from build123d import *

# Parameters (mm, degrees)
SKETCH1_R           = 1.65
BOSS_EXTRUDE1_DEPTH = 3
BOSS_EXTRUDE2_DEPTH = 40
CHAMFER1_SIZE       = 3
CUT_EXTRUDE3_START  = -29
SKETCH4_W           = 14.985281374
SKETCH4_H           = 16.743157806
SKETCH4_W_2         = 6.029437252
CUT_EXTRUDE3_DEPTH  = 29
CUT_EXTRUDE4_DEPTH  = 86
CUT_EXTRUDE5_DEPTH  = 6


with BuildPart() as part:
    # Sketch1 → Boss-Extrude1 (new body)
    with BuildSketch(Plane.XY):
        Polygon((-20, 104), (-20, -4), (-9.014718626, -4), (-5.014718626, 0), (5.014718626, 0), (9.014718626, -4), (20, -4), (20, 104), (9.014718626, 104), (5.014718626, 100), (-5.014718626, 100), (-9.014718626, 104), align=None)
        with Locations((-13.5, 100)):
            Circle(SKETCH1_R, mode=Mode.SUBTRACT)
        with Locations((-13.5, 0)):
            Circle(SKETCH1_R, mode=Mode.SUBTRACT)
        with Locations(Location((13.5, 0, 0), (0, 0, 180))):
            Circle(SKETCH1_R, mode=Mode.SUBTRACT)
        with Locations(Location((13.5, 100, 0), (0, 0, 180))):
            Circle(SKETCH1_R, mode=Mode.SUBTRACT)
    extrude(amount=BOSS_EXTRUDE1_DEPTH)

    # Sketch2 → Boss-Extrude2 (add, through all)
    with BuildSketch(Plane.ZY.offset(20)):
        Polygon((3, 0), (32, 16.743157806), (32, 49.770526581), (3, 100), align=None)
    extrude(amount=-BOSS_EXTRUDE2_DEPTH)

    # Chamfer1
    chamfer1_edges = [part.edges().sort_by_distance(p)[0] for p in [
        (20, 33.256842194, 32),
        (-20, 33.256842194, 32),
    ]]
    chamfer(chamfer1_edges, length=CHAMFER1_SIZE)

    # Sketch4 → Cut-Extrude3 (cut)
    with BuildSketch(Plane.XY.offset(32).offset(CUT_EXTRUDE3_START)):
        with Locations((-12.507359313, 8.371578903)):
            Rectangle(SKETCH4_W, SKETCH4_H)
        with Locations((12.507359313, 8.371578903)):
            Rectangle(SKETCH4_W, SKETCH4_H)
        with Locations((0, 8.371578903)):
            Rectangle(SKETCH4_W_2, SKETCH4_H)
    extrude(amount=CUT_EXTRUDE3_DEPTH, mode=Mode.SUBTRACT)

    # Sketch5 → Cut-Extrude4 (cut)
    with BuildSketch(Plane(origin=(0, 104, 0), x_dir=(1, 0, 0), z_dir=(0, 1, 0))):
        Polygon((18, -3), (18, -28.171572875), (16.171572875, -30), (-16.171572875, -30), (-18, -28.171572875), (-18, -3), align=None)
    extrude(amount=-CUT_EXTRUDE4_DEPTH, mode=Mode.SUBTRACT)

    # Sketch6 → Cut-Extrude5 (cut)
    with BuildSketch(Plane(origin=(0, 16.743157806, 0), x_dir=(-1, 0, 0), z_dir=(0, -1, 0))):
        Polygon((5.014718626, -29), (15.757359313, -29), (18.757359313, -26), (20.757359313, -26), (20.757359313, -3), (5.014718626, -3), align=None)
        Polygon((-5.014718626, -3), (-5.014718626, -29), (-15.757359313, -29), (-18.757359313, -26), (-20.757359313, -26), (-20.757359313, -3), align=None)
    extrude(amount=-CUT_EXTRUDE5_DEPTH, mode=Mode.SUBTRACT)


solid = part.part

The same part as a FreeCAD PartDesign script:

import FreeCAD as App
import Part
import Sketcher
from FreeCAD import Vector
Q = App.Units.Quantity


def edges_at(feature, points):
    """Names of the edges that pass closest to the given points."""
    edges = feature.Shape.Edges
    near = lambda p: min(range(len(edges)), key=lambda i: edges[i].distToShape(Part.Vertex(*p))[0])
    return sorted({f"Edge{near(p) + 1}" for p in points})

doc = App.newDocument("Part")
body = doc.addObject("PartDesign::Body", "Body")

sketch1 = body.newObject("Sketcher::SketchObject", "Sketch")
sketch1.AttachmentSupport = (doc.getObject("XY_Plane"), [""])
sketch1.MapMode = "FlatFace"
sketch1.addGeometry([
    Part.LineSegment(Vector(-20, 104, 0), Vector(-20, -4, 0)),
    Part.LineSegment(Vector(-20, -4, 0), Vector(-9.014719, -4, 0)),
    Part.LineSegment(Vector(-9.014719, -4, 0), Vector(-5.014719, 0, 0)),
    Part.LineSegment(Vector(-5.014719, 0, 0), Vector(5.014719, 0, 0)),
    Part.LineSegment(Vector(5.014719, 0, 0), Vector(9.014719, -4, 0)),
    Part.LineSegment(Vector(9.014719, -4, 0), Vector(20, -4, 0)),
    Part.LineSegment(Vector(20, -4, 0), Vector(20, 104, 0)),
    Part.LineSegment(Vector(20, 104, 0), Vector(9.014719, 104, 0)),
    Part.LineSegment(Vector(9.014719, 104, 0), Vector(5.014719, 100, 0)),
    Part.LineSegment(Vector(5.014719, 100, 0), Vector(-5.014719, 100, 0)),
    Part.LineSegment(Vector(-5.014719, 100, 0), Vector(-9.014719, 104, 0)),
    Part.LineSegment(Vector(-9.014719, 104, 0), Vector(-20, 104, 0)),
    Part.Circle(Vector(-13.5, 0, 0), Vector(0, 0, 1), 1.65),
    Part.Circle(Vector(13.5, 0, 0), Vector(0, 0, 1), 1.65),
    Part.Circle(Vector(-13.5, 100, 0), Vector(0, 0, 1), 1.65),
    Part.Circle(Vector(13.5, 100, 0), Vector(0, 0, 1), 1.65),
], False)
sketch1.addConstraint([
    Sketcher.Constraint("Coincident", 0, 2, 1, 1),
    Sketcher.Constraint("Coincident", 1, 2, 2, 1),
    Sketcher.Constraint("Coincident", 2, 2, 3, 1),
    Sketcher.Constraint("Coincident", 3, 2, 4, 1),
    Sketcher.Constraint("Coincident", 4, 2, 5, 1),
    Sketcher.Constraint("Coincident", 5, 2, 6, 1),
    Sketcher.Constraint("Coincident", 6, 2, 7, 1),
    Sketcher.Constraint("Coincident", 7, 2, 8, 1),
    Sketcher.Constraint("Coincident", 8, 2, 9, 1),
    Sketcher.Constraint("Coincident", 9, 2, 10, 1),
    Sketcher.Constraint("Coincident", 10, 2, 11, 1),
    Sketcher.Constraint("Coincident", 11, 2, 0, 1),
    Sketcher.Constraint("Vertical", 0),
    Sketcher.Constraint("Horizontal", 1),
    Sketcher.Constraint("Horizontal", 3),
    Sketcher.Constraint("Horizontal", 5),
    Sketcher.Constraint("Vertical", 6),
    Sketcher.Constraint("Horizontal", 7),
    Sketcher.Constraint("Horizontal", 9),
    Sketcher.Constraint("Horizontal", 11),
    Sketcher.Constraint("Equal", 12, 13),
    Sketcher.Constraint("Equal", 13, 14),
    Sketcher.Constraint("Equal", 14, 15),
    Sketcher.Constraint("Symmetric", 12, 3, 13, 3, -1, 1),
    Sketcher.Constraint("Symmetric", 2, 2, 3, 2, -1, 1),
    Sketcher.Constraint("Symmetric", 14, 3, 15, 3, -2),
    Sketcher.Constraint("Symmetric", 1, 2, 4, 2, -2),
    Sketcher.Constraint("Symmetric", 7, 2, 10, 2, -2),
    Sketcher.Constraint("PointOnObject", 12, 3, -1),
    Sketcher.Constraint("Perpendicular", 2, 4),
    Sketcher.Constraint("Perpendicular", 4, 8),
    Sketcher.Constraint("Perpendicular", 8, 10),
    Sketcher.Constraint("Horizontal", 15, 3, 8, 2),
    Sketcher.Constraint("Vertical", 12, 3, 14, 3),
    Sketcher.Constraint("Vertical", 4, 2, 7, 2),
    Sketcher.Constraint("Vertical", 3, 2, 8, 2),
    Sketcher.Constraint("Equal", 1, 5),
    Sketcher.Constraint("Diameter", 12, Q("3.3 mm")),
    Sketcher.Constraint("DistanceY", 0, 2, 0, 1, Q("108 mm")),
    Sketcher.Constraint("DistanceY", -1, 1, 14, 3, Q("100 mm")),
    Sketcher.Constraint("DistanceX", 0, 2, -1, 1, Q("20 mm")),
    Sketcher.Constraint("DistanceX", 12, 3, 13, 3, Q("27 mm")),
    Sketcher.Constraint("DistanceX", 1, 1, 1, 2, Q("10.985281 mm")),
])
pad1 = body.newObject("PartDesign::Pad", "Pad")
pad1.Profile = sketch1
pad1.Length = 3

sketch2 = body.newObject("Sketcher::SketchObject", "Sketch001")
sketch2.AttachmentSupport = (doc.getObject("YZ_Plane"), [""])
sketch2.MapMode = "FlatFace"
sketch2.AttachmentOffset = App.Placement(Vector(0, 0, -20), App.Rotation())
sketch2.addGeometry([
    Part.LineSegment(Vector(0, 3, 0), Vector(16.743158, 32, 0)),
    Part.LineSegment(Vector(16.743158, 32, 0), Vector(49.770527, 32, 0)),
    Part.LineSegment(Vector(49.770527, 32, 0), Vector(100, 3, 0)),
    Part.LineSegment(Vector(100, 3, 0), Vector(0, 3, 0)),
], False)
sketch2.addConstraint([
    Sketcher.Constraint("Coincident", 0, 2, 1, 1),
    Sketcher.Constraint("Coincident", 1, 2, 2, 1),
    Sketcher.Constraint("Coincident", 2, 2, 3, 1),
    Sketcher.Constraint("Coincident", 3, 2, 0, 1),
    Sketcher.Constraint("Horizontal", 1),
    Sketcher.Constraint("Horizontal", 3),
    Sketcher.Constraint("PointOnObject", 3, 2, -2),
    Sketcher.Constraint("Perpendicular", 0, 2),
    Sketcher.Constraint("DistanceX", 3, 2, 3, 1, Q("100 mm")),
    Sketcher.Constraint("Angle", 0, Q("60 deg")),
    Sketcher.Constraint("Distance", 2, Q("58 mm")),
    Sketcher.Constraint("DistanceY", -1, 1, 0, 2, Q("32 mm")),
])
pad2 = body.newObject("PartDesign::Pad", "Pad001")
pad2.Profile = sketch2
pad2.Length = 40
doc.recompute()

chamfer = body.newObject("PartDesign::Chamfer", "Chamfer")
chamfer.Base = (pad2, edges_at(pad2, [(20, 33.257, 32), (-20, 33.257, 32)]))
chamfer.Size = 3

sketch3 = body.newObject("Sketcher::SketchObject", "Sketch002")
sketch3.AttachmentSupport = (doc.getObject("XY_Plane"), [""])
sketch3.MapMode = "FlatFace"
sketch3.AttachmentOffset = App.Placement(Vector(0, 0, 3), App.Rotation())
sketch3.addGeometry([
    Part.LineSegment(Vector(-20, 16.743158, 0), Vector(-20, 0, 0)),
    Part.LineSegment(Vector(-20, 0, 0), Vector(-5.014719, 0, 0)),
    Part.LineSegment(Vector(-5.014719, 0, 0), Vector(-5.014719, 16.743158, 0)),
    Part.LineSegment(Vector(-5.014719, 16.743158, 0), Vector(-20, 16.743158, 0)),
    Part.LineSegment(Vector(5.014719, 16.743158, 0), Vector(5.014719, 0, 0)),
    Part.LineSegment(Vector(5.014719, 0, 0), Vector(20, 0, 0)),
    Part.LineSegment(Vector(20, 0, 0), Vector(20, 16.743158, 0)),
    Part.LineSegment(Vector(20, 16.743158, 0), Vector(5.014719, 16.743158, 0)),
    Part.LineSegment(Vector(-3.014719, 16.743158, 0), Vector(-3.014719, 0, 0)),
    Part.LineSegment(Vector(-3.014719, 0, 0), Vector(3.014719, 0, 0)),
    Part.LineSegment(Vector(3.014719, 0, 0), Vector(3.014719, 16.743158, 0)),
    Part.LineSegment(Vector(3.014719, 16.743158, 0), Vector(-3.014719, 16.743158, 0)),
], False)
sketch3.addConstraint([
    Sketcher.Constraint("Coincident", 0, 2, 1, 1),
    Sketcher.Constraint("Coincident", 1, 2, 2, 1),
    Sketcher.Constraint("Coincident", 2, 2, 3, 1),
    Sketcher.Constraint("Coincident", 3, 2, 0, 1),
    Sketcher.Constraint("Coincident", 4, 2, 5, 1),
    Sketcher.Constraint("Coincident", 5, 2, 6, 1),
    Sketcher.Constraint("Coincident", 6, 2, 7, 1),
    Sketcher.Constraint("Coincident", 7, 2, 4, 1),
    Sketcher.Constraint("Coincident", 8, 2, 9, 1),
    Sketcher.Constraint("Coincident", 9, 2, 10, 1),
    Sketcher.Constraint("Coincident", 10, 2, 11, 1),
    Sketcher.Constraint("Coincident", 11, 2, 8, 1),
    Sketcher.Constraint("Vertical", 0),
    Sketcher.Constraint("Horizontal", 1),
    Sketcher.Constraint("Vertical", 2),
    Sketcher.Constraint("Horizontal", 3),
    Sketcher.Constraint("Vertical", 4),
    Sketcher.Constraint("Horizontal", 5),
    Sketcher.Constraint("Vertical", 6),
    Sketcher.Constraint("Horizontal", 7),
    Sketcher.Constraint("Vertical", 8),
    Sketcher.Constraint("Horizontal", 9),
    Sketcher.Constraint("Vertical", 10),
    Sketcher.Constraint("Horizontal", 11),
    Sketcher.Constraint("Symmetric", 1, 2, 4, 2, -1, 1),
    Sketcher.Constraint("Symmetric", 8, 2, 9, 2, -1, 1),
    Sketcher.Constraint("Symmetric", 0, 2, 5, 2, -2),
    Sketcher.Constraint("Horizontal", 3, 2, 6, 2),
    Sketcher.Constraint("Horizontal", 7, 2, 10, 2),
    Sketcher.Constraint("DistanceX", 0, 2, -1, 1, Q("20 mm")),
    Sketcher.Constraint("DistanceX", 1, 2, 8, 2, Q("2 mm")),
    Sketcher.Constraint("DistanceX", 1, 1, 1, 2, Q("14.985281 mm")),
    Sketcher.Constraint("DistanceY", 0, 2, 0, 1, Q("16.743158 mm")),
])
pocket1 = body.newObject("PartDesign::Pocket", "Pocket")
pocket1.Profile = sketch3
pocket1.Length = 29
pocket1.Reversed = True

sketch4 = body.newObject("Sketcher::SketchObject", "Sketch003")
sketch4.AttachmentSupport = (doc.getObject("XZ_Plane"), [""])
sketch4.MapMode = "FlatFace"
sketch4.AttachmentOffset = App.Placement(Vector(0, 0, -104), App.Rotation())
sketch4.addGeometry([
    Part.LineSegment(Vector(18, 28.171573, 0), Vector(18, 3, 0)),
    Part.LineSegment(Vector(18, 3, 0), Vector(-18, 3, 0)),
    Part.LineSegment(Vector(-18, 3, 0), Vector(-18, 28.171573, 0)),
    Part.LineSegment(Vector(-18, 28.171573, 0), Vector(-16.171573, 30, 0)),
    Part.LineSegment(Vector(-16.171573, 30, 0), Vector(16.171573, 30, 0)),
    Part.LineSegment(Vector(16.171573, 30, 0), Vector(18, 28.171573, 0)),
], False)
sketch4.addConstraint([
    Sketcher.Constraint("Coincident", 0, 2, 1, 1),
    Sketcher.Constraint("Coincident", 1, 2, 2, 1),
    Sketcher.Constraint("Coincident", 2, 2, 3, 1),
    Sketcher.Constraint("Coincident", 3, 2, 4, 1),
    Sketcher.Constraint("Coincident", 4, 2, 5, 1),
    Sketcher.Constraint("Coincident", 5, 2, 0, 1),
    Sketcher.Constraint("Vertical", 0),
    Sketcher.Constraint("Horizontal", 1),
    Sketcher.Constraint("Vertical", 2),
    Sketcher.Constraint("Horizontal", 4),
    Sketcher.Constraint("Symmetric", 2, 2, 5, 2, -2),
    Sketcher.Constraint("Perpendicular", 3, 5),
    Sketcher.Constraint("Equal", 3, 5),
    Sketcher.Constraint("DistanceX", 1, 2, 1, 1, Q("36 mm")),
    Sketcher.Constraint("DistanceY", -1, 1, 0, 2, Q("3 mm")),
    Sketcher.Constraint("DistanceY", -1, 1, 3, 2, Q("30 mm")),
    Sketcher.Constraint("DistanceX", 4, 1, 4, 2, Q("32.343146 mm")),
])
pocket2 = body.newObject("PartDesign::Pocket", "Pocket001")
pocket2.Profile = sketch4
pocket2.Length = 86
pocket2.Reversed = True

sketch5 = body.newObject("Sketcher::SketchObject", "Sketch004")
sketch5.AttachmentSupport = (doc.getObject("XZ_Plane"), [""])
sketch5.MapMode = "FlatFace"
sketch5.AttachmentOffset = App.Placement(Vector(0, 0, -16.743158), App.Rotation())
sketch5.addGeometry([
    Part.LineSegment(Vector(-5.014719, 29, 0), Vector(-15.757359, 29, 0)),
    Part.LineSegment(Vector(-15.757359, 29, 0), Vector(-18.757359, 26, 0)),
    Part.LineSegment(Vector(-18.757359, 26, 0), Vector(-20.757359, 26, 0)),
    Part.LineSegment(Vector(-20.757359, 26, 0), Vector(-20.757359, 3, 0)),
    Part.LineSegment(Vector(-20.757359, 3, 0), Vector(-5.014719, 3, 0)),
    Part.LineSegment(Vector(-5.014719, 3, 0), Vector(-5.014719, 29, 0)),
    Part.LineSegment(Vector(5.014719, 29, 0), Vector(5.014719, 3, 0)),
    Part.LineSegment(Vector(5.014719, 3, 0), Vector(20.757359, 3, 0)),
    Part.LineSegment(Vector(20.757359, 3, 0), Vector(20.757359, 26, 0)),
    Part.LineSegment(Vector(20.757359, 26, 0), Vector(18.757359, 26, 0)),
    Part.LineSegment(Vector(18.757359, 26, 0), Vector(15.757359, 29, 0)),
    Part.LineSegment(Vector(15.757359, 29, 0), Vector(5.014719, 29, 0)),
], False)
sketch5.addConstraint([
    Sketcher.Constraint("Coincident", 0, 2, 1, 1),
    Sketcher.Constraint("Coincident", 1, 2, 2, 1),
    Sketcher.Constraint("Coincident", 2, 2, 3, 1),
    Sketcher.Constraint("Coincident", 3, 2, 4, 1),
    Sketcher.Constraint("Coincident", 4, 2, 5, 1),
    Sketcher.Constraint("Coincident", 5, 2, 0, 1),
    Sketcher.Constraint("Coincident", 6, 2, 7, 1),
    Sketcher.Constraint("Coincident", 7, 2, 8, 1),
    Sketcher.Constraint("Coincident", 8, 2, 9, 1),
    Sketcher.Constraint("Coincident", 9, 2, 10, 1),
    Sketcher.Constraint("Coincident", 10, 2, 11, 1),
    Sketcher.Constraint("Coincident", 11, 2, 6, 1),
    Sketcher.Constraint("Horizontal", 0),
    Sketcher.Constraint("Horizontal", 2),
    Sketcher.Constraint("Vertical", 3),
    Sketcher.Constraint("Horizontal", 4),
    Sketcher.Constraint("Vertical", 5),
    Sketcher.Constraint("Vertical", 6),
    Sketcher.Constraint("Horizontal", 7),
    Sketcher.Constraint("Vertical", 8),
    Sketcher.Constraint("Horizontal", 9),
    Sketcher.Constraint("Horizontal", 11),
    Sketcher.Constraint("Symmetric", 4, 2, 6, 2, -2),
    Sketcher.Constraint("Symmetric", 2, 2, 8, 2, -2),
    Sketcher.Constraint("Symmetric", 0, 2, 10, 2, -2),
    Sketcher.Constraint("Perpendicular", 1, 10),
    Sketcher.Constraint("Equal", 2, 9),
    Sketcher.Constraint("DistanceX", 2, 2, 2, 1, Q("2 mm")),
    Sketcher.Constraint("DistanceY", 3, 2, 3, 1, Q("23 mm")),
    Sketcher.Constraint("DistanceY", 5, 1, 5, 2, Q("26 mm")),
    Sketcher.Constraint("DistanceY", -1, 1, 0, 2, Q("29 mm")),
    Sketcher.Constraint("DistanceX", 0, 2, 0, 1, Q("10.742641 mm")),
    Sketcher.Constraint("DistanceX", 0, 2, -1, 1, Q("15.757359 mm")),
])
pocket3 = body.newObject("PartDesign::Pocket", "Pocket002")
pocket3.Profile = sketch5
pocket3.Length = 6

doc.recompute()
